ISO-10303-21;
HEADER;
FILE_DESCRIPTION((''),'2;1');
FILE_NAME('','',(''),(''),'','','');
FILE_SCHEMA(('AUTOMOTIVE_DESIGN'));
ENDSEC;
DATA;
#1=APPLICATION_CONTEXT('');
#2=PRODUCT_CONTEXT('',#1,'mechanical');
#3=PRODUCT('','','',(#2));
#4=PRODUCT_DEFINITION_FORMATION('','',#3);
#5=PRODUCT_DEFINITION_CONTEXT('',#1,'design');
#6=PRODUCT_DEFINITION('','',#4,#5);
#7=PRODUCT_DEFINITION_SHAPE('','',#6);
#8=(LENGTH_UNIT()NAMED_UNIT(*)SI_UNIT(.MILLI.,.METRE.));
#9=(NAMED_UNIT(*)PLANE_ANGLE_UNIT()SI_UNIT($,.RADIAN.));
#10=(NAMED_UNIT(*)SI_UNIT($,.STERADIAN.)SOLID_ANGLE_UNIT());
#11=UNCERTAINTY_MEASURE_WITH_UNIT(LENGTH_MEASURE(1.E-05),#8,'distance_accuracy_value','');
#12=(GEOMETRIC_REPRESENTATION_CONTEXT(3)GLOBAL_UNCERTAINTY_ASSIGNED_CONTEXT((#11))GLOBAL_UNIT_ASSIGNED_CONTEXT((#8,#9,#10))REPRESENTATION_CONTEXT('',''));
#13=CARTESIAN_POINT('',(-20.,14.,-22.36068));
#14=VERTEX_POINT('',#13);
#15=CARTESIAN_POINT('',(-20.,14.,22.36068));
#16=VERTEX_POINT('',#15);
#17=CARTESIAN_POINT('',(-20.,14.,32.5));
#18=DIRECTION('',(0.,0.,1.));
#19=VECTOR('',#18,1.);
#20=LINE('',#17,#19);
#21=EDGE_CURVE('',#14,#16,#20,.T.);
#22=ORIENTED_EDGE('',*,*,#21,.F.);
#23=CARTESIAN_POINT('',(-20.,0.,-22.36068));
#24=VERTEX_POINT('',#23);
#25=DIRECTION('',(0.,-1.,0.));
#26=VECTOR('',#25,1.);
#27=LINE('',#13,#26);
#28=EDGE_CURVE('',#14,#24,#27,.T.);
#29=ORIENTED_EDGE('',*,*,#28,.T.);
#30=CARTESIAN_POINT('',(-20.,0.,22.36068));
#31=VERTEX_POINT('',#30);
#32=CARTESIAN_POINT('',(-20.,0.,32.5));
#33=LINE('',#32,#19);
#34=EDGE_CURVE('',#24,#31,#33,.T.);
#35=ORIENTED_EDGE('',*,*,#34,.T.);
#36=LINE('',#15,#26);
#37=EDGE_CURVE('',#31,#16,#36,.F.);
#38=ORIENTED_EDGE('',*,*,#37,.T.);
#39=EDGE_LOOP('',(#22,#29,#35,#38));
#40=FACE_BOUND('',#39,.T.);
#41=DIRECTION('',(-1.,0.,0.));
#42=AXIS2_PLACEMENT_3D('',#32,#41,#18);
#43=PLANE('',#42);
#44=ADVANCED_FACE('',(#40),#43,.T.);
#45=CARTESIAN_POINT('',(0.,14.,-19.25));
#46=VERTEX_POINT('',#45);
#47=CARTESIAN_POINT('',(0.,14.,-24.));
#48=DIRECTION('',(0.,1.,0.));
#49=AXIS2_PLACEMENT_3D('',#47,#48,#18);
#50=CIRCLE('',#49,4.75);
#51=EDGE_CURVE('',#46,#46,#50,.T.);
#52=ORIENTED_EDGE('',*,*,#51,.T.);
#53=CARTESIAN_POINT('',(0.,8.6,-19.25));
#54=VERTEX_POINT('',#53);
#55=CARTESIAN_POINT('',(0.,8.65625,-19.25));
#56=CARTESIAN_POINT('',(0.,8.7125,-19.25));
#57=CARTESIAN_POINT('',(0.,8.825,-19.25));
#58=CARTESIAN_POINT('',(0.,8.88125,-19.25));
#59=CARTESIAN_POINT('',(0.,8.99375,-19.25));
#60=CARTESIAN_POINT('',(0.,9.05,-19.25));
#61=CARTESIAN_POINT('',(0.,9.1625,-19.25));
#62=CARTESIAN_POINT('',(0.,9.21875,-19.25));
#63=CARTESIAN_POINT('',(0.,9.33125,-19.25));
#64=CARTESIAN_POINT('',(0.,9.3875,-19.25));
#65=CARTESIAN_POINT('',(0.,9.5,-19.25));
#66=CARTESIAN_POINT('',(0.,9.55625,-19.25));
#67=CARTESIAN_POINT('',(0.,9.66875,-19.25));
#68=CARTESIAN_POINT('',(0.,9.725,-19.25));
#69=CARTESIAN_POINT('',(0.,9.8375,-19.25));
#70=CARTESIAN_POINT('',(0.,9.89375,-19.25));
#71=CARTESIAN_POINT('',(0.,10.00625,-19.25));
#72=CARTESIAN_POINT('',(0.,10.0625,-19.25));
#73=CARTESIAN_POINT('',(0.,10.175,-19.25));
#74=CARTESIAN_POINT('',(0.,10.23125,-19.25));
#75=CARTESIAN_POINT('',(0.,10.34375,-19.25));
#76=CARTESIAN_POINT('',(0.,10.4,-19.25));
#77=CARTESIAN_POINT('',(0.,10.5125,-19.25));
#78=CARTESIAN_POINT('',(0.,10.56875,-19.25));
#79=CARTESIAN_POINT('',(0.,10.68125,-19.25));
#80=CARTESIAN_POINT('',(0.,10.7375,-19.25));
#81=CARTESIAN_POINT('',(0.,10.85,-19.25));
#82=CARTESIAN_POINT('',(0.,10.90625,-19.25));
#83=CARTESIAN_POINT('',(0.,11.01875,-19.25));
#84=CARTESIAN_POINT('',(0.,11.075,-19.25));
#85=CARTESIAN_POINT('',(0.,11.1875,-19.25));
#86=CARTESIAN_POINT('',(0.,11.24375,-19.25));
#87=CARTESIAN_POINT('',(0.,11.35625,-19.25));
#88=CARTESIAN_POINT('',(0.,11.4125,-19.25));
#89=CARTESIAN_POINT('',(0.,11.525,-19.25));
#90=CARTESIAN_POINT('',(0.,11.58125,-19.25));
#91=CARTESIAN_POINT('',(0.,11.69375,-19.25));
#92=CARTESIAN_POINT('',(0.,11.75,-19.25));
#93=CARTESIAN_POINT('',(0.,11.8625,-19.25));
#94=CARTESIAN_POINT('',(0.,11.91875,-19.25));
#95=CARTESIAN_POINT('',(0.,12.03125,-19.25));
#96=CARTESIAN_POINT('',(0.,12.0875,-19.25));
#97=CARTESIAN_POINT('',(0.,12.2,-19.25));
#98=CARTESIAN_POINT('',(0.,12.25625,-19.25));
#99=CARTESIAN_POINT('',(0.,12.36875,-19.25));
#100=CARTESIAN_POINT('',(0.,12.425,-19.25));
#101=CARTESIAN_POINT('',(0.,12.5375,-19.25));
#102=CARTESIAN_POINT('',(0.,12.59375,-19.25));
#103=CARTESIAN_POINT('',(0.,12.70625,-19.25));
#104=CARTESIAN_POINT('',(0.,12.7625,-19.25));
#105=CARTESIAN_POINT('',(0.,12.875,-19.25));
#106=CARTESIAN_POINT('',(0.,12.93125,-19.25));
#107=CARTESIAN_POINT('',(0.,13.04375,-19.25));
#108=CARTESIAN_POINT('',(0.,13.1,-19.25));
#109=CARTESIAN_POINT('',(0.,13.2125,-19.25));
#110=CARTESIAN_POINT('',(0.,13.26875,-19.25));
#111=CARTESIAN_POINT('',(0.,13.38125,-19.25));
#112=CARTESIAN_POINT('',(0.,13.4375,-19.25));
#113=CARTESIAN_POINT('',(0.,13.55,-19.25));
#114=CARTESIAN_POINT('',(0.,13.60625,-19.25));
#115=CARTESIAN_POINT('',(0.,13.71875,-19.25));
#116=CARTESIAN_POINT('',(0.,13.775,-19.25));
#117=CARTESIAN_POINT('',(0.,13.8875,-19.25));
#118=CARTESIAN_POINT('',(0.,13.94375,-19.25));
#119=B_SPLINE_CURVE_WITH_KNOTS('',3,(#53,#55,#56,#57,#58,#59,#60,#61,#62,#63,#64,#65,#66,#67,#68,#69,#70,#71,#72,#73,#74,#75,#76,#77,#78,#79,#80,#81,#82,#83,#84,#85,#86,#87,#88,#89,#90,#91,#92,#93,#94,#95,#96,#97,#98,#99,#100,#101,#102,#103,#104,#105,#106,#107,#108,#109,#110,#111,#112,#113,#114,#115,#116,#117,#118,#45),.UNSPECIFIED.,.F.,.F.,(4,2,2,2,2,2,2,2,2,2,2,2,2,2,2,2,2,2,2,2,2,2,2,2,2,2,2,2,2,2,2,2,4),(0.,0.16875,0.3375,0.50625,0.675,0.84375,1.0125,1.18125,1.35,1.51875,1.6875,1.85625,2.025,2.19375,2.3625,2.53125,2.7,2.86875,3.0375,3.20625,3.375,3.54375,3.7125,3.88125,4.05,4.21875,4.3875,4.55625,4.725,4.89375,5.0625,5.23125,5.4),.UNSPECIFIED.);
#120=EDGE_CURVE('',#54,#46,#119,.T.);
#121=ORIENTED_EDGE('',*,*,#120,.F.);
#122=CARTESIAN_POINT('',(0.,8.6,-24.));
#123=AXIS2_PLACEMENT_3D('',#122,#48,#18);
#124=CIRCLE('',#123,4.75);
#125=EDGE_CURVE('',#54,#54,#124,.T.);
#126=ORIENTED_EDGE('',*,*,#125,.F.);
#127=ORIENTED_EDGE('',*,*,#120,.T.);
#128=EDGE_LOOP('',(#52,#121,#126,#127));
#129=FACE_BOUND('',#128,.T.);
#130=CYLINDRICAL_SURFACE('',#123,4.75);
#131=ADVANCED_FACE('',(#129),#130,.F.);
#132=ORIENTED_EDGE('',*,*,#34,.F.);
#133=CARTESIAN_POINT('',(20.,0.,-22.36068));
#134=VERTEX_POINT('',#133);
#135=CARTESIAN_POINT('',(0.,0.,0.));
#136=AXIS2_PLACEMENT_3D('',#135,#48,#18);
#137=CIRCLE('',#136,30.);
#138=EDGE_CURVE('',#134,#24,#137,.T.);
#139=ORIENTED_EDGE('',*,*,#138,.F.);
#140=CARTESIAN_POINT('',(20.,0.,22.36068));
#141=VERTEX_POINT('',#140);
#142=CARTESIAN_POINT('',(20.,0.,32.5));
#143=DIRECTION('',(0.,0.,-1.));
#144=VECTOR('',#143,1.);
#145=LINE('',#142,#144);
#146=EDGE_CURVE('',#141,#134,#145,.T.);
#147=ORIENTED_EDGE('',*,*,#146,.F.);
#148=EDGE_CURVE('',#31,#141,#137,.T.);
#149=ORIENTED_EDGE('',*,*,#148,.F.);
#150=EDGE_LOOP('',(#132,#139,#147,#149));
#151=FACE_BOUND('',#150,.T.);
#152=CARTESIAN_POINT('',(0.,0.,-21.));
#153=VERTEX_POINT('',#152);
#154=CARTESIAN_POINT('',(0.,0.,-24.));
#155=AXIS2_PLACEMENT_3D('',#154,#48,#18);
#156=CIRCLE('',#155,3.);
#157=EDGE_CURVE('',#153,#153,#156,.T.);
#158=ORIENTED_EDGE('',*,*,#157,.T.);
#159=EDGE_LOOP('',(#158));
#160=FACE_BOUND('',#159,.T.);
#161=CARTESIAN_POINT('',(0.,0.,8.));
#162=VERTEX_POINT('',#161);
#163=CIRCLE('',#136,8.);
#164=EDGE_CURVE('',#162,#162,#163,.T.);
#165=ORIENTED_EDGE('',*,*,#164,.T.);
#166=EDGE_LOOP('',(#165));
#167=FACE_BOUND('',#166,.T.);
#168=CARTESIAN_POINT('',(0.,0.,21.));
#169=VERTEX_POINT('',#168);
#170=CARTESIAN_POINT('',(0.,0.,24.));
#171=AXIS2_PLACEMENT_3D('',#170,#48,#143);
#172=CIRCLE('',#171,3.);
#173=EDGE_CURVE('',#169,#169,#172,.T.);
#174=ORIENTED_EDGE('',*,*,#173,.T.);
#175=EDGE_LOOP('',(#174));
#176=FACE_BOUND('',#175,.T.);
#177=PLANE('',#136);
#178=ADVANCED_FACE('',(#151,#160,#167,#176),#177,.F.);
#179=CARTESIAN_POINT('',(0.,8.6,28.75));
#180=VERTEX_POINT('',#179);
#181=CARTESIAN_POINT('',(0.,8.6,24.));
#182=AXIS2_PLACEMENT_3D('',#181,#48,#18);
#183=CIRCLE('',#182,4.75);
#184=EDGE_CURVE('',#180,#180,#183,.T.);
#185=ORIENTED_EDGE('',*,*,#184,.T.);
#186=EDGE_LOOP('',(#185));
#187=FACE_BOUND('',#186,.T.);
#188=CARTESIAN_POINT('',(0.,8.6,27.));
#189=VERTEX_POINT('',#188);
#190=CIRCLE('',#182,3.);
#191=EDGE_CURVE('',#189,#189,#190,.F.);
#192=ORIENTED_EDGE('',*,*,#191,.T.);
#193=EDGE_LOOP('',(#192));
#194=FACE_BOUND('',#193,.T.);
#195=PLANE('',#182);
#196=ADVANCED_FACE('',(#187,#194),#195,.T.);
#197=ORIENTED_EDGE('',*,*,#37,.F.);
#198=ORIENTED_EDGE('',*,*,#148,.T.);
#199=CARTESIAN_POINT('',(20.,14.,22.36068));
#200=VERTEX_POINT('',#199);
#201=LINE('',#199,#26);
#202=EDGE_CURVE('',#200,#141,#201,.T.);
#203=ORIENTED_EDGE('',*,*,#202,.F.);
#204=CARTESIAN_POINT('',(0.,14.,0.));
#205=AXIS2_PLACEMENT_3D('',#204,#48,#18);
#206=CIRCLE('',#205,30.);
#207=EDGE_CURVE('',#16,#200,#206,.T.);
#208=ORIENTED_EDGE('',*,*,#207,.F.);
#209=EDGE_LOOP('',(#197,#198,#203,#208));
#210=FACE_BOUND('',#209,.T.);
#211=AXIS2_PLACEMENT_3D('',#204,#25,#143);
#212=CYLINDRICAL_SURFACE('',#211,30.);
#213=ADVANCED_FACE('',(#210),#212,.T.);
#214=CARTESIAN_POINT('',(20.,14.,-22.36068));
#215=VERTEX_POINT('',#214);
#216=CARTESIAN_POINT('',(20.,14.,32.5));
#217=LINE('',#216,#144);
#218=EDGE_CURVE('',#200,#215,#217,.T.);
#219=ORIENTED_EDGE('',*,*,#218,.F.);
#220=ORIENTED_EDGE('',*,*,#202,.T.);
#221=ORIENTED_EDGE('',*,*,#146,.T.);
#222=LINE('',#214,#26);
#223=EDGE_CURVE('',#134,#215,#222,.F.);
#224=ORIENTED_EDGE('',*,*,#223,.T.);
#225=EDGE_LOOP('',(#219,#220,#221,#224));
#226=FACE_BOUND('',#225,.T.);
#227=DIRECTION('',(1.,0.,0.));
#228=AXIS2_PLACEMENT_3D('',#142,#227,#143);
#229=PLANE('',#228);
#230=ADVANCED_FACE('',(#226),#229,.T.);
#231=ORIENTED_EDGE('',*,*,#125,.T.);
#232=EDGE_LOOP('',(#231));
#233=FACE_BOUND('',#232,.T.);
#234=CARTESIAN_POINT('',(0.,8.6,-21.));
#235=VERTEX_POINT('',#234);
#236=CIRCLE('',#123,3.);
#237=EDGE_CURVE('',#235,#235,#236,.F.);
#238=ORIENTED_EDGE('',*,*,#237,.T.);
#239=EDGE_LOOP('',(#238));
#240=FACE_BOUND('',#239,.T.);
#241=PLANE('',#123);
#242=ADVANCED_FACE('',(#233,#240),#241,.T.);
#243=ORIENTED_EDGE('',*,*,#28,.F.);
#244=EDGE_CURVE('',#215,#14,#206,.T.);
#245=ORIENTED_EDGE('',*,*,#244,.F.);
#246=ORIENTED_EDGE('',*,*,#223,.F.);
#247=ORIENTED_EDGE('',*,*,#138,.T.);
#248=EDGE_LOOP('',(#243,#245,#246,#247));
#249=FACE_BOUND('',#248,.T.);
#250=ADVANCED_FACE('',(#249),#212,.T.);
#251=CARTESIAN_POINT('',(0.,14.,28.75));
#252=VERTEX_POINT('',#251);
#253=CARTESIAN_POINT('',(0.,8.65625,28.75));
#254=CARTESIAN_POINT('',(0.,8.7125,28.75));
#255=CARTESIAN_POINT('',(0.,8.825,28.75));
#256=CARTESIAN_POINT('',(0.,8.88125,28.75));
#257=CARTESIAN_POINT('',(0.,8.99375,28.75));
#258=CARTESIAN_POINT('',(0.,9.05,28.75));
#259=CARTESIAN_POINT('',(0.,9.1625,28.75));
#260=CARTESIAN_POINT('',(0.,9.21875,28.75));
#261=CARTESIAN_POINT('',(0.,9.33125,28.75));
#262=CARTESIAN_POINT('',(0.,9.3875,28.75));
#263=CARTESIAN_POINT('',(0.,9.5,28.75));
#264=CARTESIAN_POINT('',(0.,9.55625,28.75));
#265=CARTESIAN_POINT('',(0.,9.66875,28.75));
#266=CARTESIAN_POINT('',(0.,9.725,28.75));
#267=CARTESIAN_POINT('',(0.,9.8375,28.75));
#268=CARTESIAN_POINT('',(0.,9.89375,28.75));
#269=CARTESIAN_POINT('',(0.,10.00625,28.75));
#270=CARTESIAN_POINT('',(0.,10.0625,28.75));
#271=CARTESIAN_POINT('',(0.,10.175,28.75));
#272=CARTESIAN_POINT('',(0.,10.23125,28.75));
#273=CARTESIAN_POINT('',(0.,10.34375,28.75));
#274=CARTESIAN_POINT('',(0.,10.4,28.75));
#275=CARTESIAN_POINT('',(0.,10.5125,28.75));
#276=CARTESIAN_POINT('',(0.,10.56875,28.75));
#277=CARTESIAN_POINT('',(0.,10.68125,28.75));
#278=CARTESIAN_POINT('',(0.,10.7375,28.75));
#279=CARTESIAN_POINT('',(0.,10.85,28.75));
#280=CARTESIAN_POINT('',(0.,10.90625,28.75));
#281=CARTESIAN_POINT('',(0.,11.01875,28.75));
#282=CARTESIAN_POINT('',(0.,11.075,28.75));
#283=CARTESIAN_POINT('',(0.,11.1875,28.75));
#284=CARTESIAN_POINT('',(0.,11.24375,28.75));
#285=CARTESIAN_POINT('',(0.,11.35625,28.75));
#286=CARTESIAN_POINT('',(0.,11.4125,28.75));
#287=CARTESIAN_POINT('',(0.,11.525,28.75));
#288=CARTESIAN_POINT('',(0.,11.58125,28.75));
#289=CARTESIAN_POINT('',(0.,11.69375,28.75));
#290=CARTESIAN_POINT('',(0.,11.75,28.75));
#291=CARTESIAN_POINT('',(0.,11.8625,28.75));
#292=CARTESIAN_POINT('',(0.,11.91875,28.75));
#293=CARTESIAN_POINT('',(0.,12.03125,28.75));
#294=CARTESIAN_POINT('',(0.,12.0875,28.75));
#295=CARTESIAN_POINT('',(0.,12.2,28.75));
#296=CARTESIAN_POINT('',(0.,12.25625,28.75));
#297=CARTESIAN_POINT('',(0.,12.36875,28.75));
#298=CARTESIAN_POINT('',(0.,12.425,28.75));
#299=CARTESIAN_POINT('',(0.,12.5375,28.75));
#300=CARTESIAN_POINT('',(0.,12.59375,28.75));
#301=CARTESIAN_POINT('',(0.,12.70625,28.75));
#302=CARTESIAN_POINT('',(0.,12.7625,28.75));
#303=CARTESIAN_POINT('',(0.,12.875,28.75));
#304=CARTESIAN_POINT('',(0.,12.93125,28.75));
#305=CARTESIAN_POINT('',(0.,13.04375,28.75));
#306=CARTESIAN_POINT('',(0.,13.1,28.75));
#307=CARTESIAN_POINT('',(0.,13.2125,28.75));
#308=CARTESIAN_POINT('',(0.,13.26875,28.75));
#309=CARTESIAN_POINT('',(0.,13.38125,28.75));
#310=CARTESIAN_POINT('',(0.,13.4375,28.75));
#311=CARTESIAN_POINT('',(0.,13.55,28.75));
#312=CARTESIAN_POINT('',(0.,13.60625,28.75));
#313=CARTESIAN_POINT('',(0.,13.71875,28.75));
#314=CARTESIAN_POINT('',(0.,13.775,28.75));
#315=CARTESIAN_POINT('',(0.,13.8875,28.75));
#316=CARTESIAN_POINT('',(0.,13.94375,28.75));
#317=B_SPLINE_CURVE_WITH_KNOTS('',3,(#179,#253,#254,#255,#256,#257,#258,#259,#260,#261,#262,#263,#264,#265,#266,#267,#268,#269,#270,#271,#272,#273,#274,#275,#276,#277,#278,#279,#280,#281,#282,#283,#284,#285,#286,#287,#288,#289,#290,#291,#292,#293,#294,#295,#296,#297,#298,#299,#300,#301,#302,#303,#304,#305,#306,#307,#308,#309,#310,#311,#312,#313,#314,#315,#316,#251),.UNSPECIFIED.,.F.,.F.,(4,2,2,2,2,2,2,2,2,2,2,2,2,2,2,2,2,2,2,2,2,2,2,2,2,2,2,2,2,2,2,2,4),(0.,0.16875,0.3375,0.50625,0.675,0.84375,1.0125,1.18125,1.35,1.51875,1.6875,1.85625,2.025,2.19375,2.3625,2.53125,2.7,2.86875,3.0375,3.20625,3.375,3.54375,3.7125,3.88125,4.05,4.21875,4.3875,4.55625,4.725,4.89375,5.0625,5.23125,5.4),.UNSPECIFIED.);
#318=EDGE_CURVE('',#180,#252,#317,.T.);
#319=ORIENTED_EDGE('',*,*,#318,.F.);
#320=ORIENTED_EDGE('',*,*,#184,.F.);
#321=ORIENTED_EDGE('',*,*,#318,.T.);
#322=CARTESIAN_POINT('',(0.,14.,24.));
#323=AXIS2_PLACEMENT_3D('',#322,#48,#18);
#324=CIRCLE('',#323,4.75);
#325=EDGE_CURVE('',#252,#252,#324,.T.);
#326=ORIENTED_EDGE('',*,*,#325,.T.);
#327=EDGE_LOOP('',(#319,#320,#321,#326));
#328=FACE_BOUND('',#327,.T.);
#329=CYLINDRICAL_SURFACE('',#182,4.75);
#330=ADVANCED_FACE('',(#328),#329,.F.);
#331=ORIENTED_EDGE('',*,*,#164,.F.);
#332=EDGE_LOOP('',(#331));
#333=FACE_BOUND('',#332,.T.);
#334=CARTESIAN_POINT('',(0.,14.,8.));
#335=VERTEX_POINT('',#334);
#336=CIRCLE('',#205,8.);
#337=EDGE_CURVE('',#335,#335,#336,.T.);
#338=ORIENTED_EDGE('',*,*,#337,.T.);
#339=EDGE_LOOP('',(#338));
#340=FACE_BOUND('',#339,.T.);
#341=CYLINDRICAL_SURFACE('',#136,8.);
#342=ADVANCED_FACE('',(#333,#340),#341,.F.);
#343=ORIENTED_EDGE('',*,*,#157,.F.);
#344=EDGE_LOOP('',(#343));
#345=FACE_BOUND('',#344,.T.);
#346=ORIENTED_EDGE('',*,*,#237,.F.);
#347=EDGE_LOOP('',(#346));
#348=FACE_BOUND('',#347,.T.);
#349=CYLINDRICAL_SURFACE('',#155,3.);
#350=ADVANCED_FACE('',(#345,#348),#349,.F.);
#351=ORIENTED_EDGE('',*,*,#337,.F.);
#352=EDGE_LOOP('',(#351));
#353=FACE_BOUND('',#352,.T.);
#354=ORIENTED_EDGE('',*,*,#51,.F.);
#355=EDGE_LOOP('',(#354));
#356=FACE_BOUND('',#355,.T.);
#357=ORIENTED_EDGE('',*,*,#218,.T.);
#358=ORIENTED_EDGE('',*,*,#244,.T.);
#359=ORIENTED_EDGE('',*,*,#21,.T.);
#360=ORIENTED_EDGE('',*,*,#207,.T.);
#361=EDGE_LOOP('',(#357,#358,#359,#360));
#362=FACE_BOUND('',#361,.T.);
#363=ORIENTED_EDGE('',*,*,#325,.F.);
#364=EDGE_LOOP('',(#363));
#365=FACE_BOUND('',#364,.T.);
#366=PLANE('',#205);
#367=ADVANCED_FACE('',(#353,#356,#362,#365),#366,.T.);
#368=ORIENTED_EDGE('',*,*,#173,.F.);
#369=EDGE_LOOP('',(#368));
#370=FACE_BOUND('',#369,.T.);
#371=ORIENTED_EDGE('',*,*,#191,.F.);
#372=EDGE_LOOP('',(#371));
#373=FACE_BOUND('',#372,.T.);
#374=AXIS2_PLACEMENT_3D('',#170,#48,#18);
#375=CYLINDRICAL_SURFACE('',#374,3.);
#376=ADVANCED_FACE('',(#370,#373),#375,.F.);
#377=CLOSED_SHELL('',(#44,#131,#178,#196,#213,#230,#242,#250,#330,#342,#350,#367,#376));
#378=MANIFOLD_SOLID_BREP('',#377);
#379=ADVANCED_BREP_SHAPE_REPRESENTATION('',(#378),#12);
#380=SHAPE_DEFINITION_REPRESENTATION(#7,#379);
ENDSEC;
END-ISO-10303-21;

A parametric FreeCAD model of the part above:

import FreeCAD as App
import Part
import Sketcher
from FreeCAD import Vector


def add_polygon(sketch, points):
    """Adds a closed chain of lines whose ends are joined by coincident constraints."""
    first, n = sketch.GeometryCount, len(points)
    for a, b in zip(points, points[1:] + points[:1]):
        sketch.addGeometry(Part.LineSegment(App.Vector(*a, 0), App.Vector(*b, 0)), False)
    for i in range(n):
        sketch.addConstraint(Sketcher.Constraint("Coincident", first + i, 2, first + (i + 1) % n, 1))

doc = App.newDocument("Part")
params = doc.addObject("Spreadsheet::Sheet", "Params")
for row, (alias, value) in enumerate([
    ("sketch1_diameter", "60 mm"),
    ("pad1_length", "14 mm"),
    ("sketch2_diameter", "16 mm"),
    ("pocket1_length", "14 mm"),
    ("sketch3_diameter", "6 mm"),
    ("pocket2_length", "14 mm"),
    ("sketch4_diameter", "9.5 mm"),
    ("pocket3_length", "5.4 mm"),
    ("sketch5_width", "40 mm"),
    ("sketch5_height", "65 mm"),
    ("sketch5_width2", "79.2 mm"),
    ("pocket4_length", "14 mm"),
], start=1):
    params.set(f"A{row}", alias)
    params.set(f"B{row}", "=" + value)
    params.setAlias(f"B{row}", alias)

body = doc.addObject("PartDesign::Body", "Body")

# Sketch on XZ plane
sketch1 = doc.addObject("Sketcher::SketchObject", "Sketch")
body.addObject(sketch1)
sketch1.AttachmentSupport = (doc.XZ_Plane, [""])
sketch1.MapMode = "FlatFace"
sketch1.addGeometry(Part.Circle(Vector(0, 0, 0), Vector(0, 0, 1), 30), False)
sketch1.addConstraint([
    Sketcher.Constraint("Coincident", 0, 3, -1, 1),
    Sketcher.Constraint("Diameter", 0, 60.0),
])
sketch1.setExpression("Constraints[1]", "Params.sketch1_diameter")
pad1 = doc.addObject("PartDesign::Pad", "Pad")
body.addObject(pad1)
pad1.Profile = sketch1
pad1.setExpression("Length", "Params.pad1_length")
pad1.Reversed = True

# Sketch on XZ plane
sketch2 = doc.addObject("Sketcher::SketchObject", "Sketch001")
body.addObject(sketch2)
sketch2.AttachmentSupport = (doc.XZ_Plane, [""])
sketch2.MapMode = "FlatFace"
sketch2.AttachmentOffset = App.Placement(Vector(0, 0, -14), App.Rotation())
sketch2.addGeometry(Part.Circle(Vector(0, 0, 0), Vector(0, 0, 1), 8), False)
sketch2.addConstraint([
    Sketcher.Constraint("Coincident", 0, 3, -1, 1),
    Sketcher.Constraint("Diameter", 0, 16.0),
])
sketch2.setExpression("Constraints[1]", "Params.sketch2_diameter")
pocket1 = doc.addObject("PartDesign::Pocket", "Pocket")
body.addObject(pocket1)
pocket1.Profile = sketch2
pocket1.setExpression("Length", "Params.pocket1_length")
pocket1.Reversed = True

# Sketch on XZ plane
sketch3 = doc.addObject("Sketcher::SketchObject", "Sketch002")
body.addObject(sketch3)
sketch3.AttachmentSupport = (doc.XZ_Plane, [""])
sketch3.MapMode = "FlatFace"
sketch3.AttachmentOffset = App.Placement(Vector(0, 0, -14), App.Rotation())
sketch3.addGeometry([
    Part.Circle(Vector(0, -24, 0), Vector(0, 0, 1), 3),
    Part.Circle(Vector(0, 24, 0), Vector(0, 0, 1), 3),
], False)
sketch3.addConstraint([
    Sketcher.Constraint("Equal", 0, 1),
    Sketcher.Constraint("Symmetric", 0, 3, 1, 3, -1, 1),
    Sketcher.Constraint("PointOnObject", 0, 3, -2),
    Sketcher.Constraint("Diameter", 0, 6.0),
    Sketcher.Constraint("DistanceY", 0, 3, -1, 1, 24.0),
])
sketch3.setExpression("Constraints[3]", "Params.sketch3_diameter")
pocket2 = doc.addObject("PartDesign::Pocket", "Pocket001")
body.addObject(pocket2)
pocket2.Profile = sketch3
pocket2.setExpression("Length", "Params.pocket2_length")
pocket2.Reversed = True

# Sketch on XZ plane
sketch4 = doc.addObject("Sketcher::SketchObject", "Sketch003")
body.addObject(sketch4)
sketch4.AttachmentSupport = (doc.XZ_Plane, [""])
sketch4.MapMode = "FlatFace"
sketch4.AttachmentOffset = App.Placement(Vector(0, 0, -14), App.Rotation())
sketch4.addGeometry([
    Part.Circle(Vector(0, -24, 0), Vector(0, 0, 1), 4.8),
    Part.Circle(Vector(0, 24, 0), Vector(0, 0, 1), 4.8),
], False)
sketch4.addConstraint([
    Sketcher.Constraint("Equal", 0, 1),
    Sketcher.Constraint("Symmetric", 0, 3, 1, 3, -1, 1),
    Sketcher.Constraint("PointOnObject", 0, 3, -2),
    Sketcher.Constraint("Diameter", 0, 9.5),
    Sketcher.Constraint("DistanceY", 0, 3, -1, 1, 24.0),
])
sketch4.setExpression("Constraints[3]", "Params.sketch4_diameter")
pocket3 = doc.addObject("PartDesign::Pocket", "Pocket002")
body.addObject(pocket3)
pocket3.Profile = sketch4
pocket3.setExpression("Length", "Params.pocket3_length")
pocket3.Reversed = True

# Sketch on XZ plane
sketch5 = doc.addObject("Sketcher::SketchObject", "Sketch004")
body.addObject(sketch5)
sketch5.AttachmentSupport = (doc.XZ_Plane, [""])
sketch5.MapMode = "FlatFace"
sketch5.AttachmentOffset = App.Placement(Vector(0, 0, -14), App.Rotation())
add_polygon(sketch5, [(-40, -40), (-40, 40), (40, 40), (40, -40)])  # lines 0-3
add_polygon(sketch5, [(20, 32), (-20, 32), (-20, -32), (20, -32)])  # lines 4-7
sketch5.addConstraint([
    Sketcher.Constraint("Vertical", 0),
    Sketcher.Constraint("Horizontal", 1),
    Sketcher.Constraint("Vertical", 2),
    Sketcher.Constraint("Horizontal", 3),
    Sketcher.Constraint("Horizontal", 4),
    Sketcher.Constraint("Vertical", 5),
    Sketcher.Constraint("Horizontal", 6),
    Sketcher.Constraint("Vertical", 7),
    Sketcher.Constraint("Symmetric", 0, 2, 2, 2, -1, 1),
    Sketcher.Constraint("Symmetric", 4, 2, 6, 2, -1, 1),
    Sketcher.Constraint("Equal", 3, 0),
    Sketcher.Constraint("DistanceX", 4, 2, 4, 1, 40.0),
    Sketcher.Constraint("DistanceY", 5, 2, 5, 1, 65.0),
    Sketcher.Constraint("DistanceX", 1, 1, 1, 2, 79.2),
])
sketch5.setExpression("Constraints[19]", "Params.sketch5_width")
sketch5.setExpression("Constraints[20]", "Params.sketch5_height")
sketch5.setExpression("Constraints[21]", "Params.sketch5_width2")
pocket4 = doc.addObject("PartDesign::Pocket", "Pocket003")
body.addObject(pocket4)
pocket4.Profile = sketch5
pocket4.setExpression("Length", "Params.pocket4_length")
pocket4.Reversed = True

doc.recompute()
